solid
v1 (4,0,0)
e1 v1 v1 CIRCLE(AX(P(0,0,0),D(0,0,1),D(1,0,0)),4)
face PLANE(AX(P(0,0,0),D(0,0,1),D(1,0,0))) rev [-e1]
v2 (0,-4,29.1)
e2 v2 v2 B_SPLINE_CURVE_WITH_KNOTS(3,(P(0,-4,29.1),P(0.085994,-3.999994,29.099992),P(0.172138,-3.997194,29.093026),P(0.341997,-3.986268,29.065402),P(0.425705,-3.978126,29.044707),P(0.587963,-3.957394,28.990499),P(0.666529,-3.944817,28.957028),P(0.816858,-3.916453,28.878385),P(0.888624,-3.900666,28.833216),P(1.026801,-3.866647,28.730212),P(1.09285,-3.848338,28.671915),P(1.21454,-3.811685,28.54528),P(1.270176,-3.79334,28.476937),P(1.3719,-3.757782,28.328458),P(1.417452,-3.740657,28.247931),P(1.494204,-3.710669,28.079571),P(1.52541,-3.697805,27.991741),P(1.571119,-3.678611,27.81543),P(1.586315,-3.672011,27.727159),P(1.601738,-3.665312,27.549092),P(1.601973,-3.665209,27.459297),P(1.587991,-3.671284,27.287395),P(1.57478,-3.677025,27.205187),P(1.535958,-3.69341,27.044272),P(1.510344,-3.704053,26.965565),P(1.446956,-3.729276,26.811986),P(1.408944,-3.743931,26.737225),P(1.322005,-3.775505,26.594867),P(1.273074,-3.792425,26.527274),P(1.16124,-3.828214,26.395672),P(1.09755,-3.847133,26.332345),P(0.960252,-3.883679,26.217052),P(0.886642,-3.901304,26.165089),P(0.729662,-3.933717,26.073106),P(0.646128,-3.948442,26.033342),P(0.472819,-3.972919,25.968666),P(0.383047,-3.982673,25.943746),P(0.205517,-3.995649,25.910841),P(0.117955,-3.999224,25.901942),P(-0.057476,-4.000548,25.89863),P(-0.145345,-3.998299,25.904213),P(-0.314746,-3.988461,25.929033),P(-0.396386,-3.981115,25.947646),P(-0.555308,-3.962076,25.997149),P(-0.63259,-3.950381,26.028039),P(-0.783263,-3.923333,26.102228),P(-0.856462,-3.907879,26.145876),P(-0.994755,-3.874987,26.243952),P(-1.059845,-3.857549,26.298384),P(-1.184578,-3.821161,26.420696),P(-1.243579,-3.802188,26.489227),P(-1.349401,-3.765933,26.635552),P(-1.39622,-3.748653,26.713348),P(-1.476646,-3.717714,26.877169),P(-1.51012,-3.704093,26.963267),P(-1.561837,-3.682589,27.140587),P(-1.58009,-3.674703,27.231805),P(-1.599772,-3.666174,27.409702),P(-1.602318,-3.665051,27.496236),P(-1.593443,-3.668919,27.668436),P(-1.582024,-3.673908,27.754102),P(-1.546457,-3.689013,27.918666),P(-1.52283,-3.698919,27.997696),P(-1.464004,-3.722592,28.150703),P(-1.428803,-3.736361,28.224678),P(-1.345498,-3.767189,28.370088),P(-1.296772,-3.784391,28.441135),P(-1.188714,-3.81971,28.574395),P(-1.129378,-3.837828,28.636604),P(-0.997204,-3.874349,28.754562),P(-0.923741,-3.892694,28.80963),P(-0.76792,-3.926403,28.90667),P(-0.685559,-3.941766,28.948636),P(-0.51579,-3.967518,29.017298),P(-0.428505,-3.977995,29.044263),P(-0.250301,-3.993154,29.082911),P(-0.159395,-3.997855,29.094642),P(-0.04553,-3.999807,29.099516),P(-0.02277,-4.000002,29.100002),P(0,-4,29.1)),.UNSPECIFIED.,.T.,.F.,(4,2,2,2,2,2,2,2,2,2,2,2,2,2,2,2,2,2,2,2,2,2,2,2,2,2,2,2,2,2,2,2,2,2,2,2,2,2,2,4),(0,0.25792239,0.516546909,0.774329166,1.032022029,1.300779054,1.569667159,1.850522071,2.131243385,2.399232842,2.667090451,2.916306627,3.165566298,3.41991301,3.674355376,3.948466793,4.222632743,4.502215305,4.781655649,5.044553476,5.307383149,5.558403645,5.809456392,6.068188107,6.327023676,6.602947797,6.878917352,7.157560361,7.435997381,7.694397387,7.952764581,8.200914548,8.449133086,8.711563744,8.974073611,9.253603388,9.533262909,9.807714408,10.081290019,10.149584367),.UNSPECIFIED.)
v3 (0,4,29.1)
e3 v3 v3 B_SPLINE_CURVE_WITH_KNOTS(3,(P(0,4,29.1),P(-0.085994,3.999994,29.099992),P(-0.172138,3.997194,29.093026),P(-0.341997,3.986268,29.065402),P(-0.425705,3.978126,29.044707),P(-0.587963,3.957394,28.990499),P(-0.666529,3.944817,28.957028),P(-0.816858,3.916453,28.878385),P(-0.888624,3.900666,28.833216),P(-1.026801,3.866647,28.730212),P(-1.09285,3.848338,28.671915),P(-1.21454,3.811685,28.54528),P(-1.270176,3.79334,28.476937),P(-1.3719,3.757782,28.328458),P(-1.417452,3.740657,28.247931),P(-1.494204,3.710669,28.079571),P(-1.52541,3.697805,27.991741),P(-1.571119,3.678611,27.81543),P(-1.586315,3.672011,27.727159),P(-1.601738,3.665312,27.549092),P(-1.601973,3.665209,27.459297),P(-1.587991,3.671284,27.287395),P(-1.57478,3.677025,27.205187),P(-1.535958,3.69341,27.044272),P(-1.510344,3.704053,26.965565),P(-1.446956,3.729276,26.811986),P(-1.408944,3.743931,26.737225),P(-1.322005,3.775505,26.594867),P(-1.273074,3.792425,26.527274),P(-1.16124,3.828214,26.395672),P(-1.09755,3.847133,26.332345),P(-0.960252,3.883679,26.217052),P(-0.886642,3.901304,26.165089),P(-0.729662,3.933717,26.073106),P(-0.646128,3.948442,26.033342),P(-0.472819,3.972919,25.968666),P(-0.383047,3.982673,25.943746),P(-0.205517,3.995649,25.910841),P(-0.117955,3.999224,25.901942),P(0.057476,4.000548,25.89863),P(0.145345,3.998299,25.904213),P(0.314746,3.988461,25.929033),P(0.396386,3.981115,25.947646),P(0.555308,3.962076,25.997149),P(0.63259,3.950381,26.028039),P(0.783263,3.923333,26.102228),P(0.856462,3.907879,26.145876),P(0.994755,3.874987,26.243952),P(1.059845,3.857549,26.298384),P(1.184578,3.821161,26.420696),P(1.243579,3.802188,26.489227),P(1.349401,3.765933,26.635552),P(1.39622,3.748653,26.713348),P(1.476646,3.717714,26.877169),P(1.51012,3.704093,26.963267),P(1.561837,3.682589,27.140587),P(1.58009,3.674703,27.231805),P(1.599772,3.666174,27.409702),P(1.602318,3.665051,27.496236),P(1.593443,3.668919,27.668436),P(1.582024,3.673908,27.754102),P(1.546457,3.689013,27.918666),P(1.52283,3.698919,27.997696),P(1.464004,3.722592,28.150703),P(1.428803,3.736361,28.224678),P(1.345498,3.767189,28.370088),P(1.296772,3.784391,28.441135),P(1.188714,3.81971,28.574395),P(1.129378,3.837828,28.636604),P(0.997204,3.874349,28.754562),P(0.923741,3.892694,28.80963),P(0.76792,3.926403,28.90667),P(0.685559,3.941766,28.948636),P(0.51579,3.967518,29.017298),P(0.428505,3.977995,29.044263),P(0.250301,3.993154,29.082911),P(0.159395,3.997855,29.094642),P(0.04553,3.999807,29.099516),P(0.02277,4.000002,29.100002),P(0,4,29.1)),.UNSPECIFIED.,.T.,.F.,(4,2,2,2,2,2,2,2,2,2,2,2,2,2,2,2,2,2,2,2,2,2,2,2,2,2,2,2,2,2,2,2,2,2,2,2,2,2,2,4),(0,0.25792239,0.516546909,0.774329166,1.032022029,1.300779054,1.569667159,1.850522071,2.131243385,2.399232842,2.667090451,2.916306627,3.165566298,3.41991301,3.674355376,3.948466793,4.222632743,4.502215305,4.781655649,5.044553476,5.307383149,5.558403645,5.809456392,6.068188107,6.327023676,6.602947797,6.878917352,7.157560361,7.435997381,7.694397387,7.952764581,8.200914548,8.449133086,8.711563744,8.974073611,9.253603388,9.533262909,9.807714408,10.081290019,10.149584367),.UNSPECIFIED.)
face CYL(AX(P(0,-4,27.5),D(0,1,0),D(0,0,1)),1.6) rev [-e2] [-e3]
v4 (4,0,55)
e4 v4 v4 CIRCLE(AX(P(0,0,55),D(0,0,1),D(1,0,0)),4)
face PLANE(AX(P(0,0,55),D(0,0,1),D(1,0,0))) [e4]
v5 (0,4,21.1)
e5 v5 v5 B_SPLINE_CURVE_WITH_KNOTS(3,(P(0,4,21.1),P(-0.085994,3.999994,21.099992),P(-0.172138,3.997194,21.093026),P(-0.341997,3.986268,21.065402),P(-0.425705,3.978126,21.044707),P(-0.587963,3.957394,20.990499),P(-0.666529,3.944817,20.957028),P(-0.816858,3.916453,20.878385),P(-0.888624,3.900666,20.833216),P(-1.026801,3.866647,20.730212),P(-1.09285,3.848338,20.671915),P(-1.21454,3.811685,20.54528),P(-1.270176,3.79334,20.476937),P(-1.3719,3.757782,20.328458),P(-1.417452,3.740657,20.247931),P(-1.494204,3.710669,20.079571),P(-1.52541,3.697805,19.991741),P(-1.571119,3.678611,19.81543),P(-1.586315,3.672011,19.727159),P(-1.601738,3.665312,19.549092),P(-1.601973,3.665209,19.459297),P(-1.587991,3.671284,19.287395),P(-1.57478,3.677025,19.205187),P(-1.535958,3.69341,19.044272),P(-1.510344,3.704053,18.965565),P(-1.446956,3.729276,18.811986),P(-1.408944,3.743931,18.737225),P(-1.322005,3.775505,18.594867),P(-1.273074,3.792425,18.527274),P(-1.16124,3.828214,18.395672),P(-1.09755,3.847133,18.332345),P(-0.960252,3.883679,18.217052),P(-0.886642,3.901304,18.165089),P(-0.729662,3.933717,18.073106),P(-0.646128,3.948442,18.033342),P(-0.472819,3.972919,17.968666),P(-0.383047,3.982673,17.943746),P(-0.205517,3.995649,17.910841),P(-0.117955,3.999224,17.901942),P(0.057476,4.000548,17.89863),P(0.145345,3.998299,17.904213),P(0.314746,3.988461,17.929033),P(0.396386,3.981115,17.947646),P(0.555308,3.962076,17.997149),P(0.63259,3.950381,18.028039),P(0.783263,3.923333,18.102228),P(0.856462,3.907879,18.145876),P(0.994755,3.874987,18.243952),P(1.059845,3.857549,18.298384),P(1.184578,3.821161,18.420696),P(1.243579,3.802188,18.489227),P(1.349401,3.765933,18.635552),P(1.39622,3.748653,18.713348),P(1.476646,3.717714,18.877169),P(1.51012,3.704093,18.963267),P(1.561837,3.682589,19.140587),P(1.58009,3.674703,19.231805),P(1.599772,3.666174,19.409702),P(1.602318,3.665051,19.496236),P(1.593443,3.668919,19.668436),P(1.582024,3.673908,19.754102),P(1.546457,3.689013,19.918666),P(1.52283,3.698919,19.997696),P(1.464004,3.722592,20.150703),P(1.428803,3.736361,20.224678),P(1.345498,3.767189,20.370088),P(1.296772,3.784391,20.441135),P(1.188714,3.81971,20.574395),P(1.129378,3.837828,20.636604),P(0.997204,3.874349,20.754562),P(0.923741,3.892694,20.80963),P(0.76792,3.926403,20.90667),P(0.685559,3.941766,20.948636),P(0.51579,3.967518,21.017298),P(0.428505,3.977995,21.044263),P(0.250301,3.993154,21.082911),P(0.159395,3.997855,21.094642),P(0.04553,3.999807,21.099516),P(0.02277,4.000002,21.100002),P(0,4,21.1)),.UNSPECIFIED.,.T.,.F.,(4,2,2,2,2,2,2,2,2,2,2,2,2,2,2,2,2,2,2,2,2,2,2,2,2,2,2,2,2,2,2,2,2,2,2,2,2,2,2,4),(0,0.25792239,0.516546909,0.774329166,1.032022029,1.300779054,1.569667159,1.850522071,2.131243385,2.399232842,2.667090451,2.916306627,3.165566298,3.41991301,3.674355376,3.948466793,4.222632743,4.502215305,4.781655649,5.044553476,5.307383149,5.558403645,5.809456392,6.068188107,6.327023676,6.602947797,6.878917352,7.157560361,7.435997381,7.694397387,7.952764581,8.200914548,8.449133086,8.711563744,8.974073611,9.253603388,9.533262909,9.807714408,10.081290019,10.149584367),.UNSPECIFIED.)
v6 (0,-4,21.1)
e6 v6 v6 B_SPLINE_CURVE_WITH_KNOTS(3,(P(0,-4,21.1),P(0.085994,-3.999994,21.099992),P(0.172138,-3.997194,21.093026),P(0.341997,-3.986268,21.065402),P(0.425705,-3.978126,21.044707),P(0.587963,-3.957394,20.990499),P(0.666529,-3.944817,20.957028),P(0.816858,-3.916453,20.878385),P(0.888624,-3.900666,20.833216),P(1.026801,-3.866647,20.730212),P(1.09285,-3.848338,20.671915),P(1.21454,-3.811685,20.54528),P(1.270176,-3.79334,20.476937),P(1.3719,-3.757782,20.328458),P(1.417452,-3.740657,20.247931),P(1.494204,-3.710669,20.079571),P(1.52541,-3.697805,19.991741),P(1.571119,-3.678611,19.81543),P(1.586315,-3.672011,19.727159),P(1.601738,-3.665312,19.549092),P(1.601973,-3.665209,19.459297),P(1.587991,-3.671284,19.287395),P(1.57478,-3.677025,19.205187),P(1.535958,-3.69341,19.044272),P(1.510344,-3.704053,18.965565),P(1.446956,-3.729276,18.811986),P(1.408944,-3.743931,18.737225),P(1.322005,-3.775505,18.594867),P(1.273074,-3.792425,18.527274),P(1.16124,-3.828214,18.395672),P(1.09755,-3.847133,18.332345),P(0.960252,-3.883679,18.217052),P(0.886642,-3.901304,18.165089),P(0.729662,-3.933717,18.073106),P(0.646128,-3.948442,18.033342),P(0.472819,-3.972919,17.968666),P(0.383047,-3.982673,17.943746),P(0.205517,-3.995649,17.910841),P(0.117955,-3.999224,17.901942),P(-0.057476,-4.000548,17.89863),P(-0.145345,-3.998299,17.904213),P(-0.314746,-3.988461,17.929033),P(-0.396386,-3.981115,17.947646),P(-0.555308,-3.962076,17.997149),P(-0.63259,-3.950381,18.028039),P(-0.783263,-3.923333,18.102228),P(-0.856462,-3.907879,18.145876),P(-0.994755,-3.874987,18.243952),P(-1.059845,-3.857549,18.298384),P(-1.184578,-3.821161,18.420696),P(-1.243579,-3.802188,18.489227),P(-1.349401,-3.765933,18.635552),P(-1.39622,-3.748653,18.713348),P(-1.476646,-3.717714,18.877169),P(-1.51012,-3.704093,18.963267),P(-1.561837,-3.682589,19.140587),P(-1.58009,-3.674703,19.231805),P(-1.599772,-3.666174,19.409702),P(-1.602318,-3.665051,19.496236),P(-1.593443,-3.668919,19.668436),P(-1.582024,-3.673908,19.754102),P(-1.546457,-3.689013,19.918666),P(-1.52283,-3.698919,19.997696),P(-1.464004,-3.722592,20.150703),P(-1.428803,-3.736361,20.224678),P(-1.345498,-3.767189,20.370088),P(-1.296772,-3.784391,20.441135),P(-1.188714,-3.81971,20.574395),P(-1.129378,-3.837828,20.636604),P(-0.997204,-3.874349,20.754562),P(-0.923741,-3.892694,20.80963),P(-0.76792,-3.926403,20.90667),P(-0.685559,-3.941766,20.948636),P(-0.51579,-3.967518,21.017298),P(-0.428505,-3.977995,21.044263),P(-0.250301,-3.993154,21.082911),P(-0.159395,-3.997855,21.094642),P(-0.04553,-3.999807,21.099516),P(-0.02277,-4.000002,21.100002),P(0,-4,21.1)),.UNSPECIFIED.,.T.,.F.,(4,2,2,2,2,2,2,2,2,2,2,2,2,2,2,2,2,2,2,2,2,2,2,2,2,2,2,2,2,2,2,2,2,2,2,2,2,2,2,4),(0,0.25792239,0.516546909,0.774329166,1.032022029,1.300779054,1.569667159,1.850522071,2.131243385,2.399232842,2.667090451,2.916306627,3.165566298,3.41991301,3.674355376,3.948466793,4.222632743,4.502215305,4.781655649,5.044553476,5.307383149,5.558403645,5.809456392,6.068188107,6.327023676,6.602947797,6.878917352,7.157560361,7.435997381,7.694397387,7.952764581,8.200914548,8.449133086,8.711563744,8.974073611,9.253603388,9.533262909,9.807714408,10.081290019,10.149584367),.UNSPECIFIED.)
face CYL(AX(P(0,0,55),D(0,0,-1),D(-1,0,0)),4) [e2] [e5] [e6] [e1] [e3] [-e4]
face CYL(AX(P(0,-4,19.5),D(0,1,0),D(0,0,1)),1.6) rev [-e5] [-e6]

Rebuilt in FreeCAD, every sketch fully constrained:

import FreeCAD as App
import Part
import Sketcher
Q = App.Units.Quantity

doc = App.newDocument("Part")
body = doc.addObject("PartDesign::Body", "Body")

# Sketch on XY plane
sketch1 = body.newObject("Sketcher::SketchObject", "Sketch")
sketch1.AttachmentSupport = (doc.getObject("XY_Plane"), [""])
sketch1.MapMode = "FlatFace"
sketch1.addGeometry(Part.Circle(App.Vector(0, 0, 0), App.Vector(0, 0, 1), 4), False)
sketch1.addConstraint(Sketcher.Constraint("Coincident", 0, 3, -1, 1))
sketch1.addConstraint(Sketcher.Constraint("Diameter", 0, Q("8 mm")))
pad1 = body.newObject("PartDesign::Pad", "Pad")
pad1.Profile = sketch1
pad1.Length = 55

# Sketch on XZ plane
sketch2 = body.newObject("Sketcher::SketchObject", "Sketch001")
sketch2.AttachmentSupport = (doc.getObject("XZ_Plane"), [""])
sketch2.MapMode = "FlatFace"
sketch2.AttachmentOffset = App.Placement(App.Vector(0, 0, -4), App.Rotation())
sketch2.addGeometry(Part.Circle(App.Vector(0, 19.5, 0), App.Vector(0, 0, 1), 1.6), False)
sketch2.addGeometry(Part.Circle(App.Vector(0, 27.5, 0), App.Vector(0, 0, 1), 1.6), False)
sketch2.addConstraint(Sketcher.Constraint("Equal", 0, 1))
sketch2.addConstraint(Sketcher.Constraint("PointOnObject", 0, 3, -2))
sketch2.addConstraint(Sketcher.Constraint("PointOnObject", 1, 3, -2))
sketch2.addConstraint(Sketcher.Constraint("Diameter", 0, Q("3.2 mm")))
sketch2.addConstraint(Sketcher.Constraint("DistanceY", 0, 3, 1, 3, Q("8 mm")))
sketch2.addConstraint(Sketcher.Constraint("DistanceY", -1, 1, 0, 3, Q("19.5 mm")))
pocket1 = body.newObject("PartDesign::Pocket", "Pocket")
pocket1.Profile = sketch2
pocket1.Type = "ThroughAll"
pocket1.Reversed = True

doc.recompute()
